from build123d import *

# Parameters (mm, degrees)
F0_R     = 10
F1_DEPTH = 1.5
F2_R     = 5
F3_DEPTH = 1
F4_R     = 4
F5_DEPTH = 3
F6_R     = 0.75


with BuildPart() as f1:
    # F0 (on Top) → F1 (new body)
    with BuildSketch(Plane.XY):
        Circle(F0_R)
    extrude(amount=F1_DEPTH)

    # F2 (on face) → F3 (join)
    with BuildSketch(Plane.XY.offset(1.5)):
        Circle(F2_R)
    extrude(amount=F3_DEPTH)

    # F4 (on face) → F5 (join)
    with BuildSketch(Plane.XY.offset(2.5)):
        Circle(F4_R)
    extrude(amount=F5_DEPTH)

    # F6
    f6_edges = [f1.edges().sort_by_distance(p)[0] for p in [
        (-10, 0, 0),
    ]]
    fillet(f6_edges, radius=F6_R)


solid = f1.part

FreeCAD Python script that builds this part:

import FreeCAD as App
import Part
import Sketcher
Q = App.Units.Quantity


def edges_at(feature, points):
    """Names of the edges that pass closest to the given points."""
    edges = feature.Shape.Edges
    near = lambda p: min(range(len(edges)), key=lambda i: edges[i].distToShape(Part.Vertex(*p))[0])
    return sorted({f"Edge{near(p) + 1}" for p in points})

doc = App.newDocument("Part")
body = doc.addObject("PartDesign::Body", "Body")

# Sketch on XY plane
sketch1 = body.newObject("Sketcher::SketchObject", "Sketch")
sketch1.AttachmentSupport = (doc.getObject("XY_Plane"), [""])
sketch1.MapMode = "FlatFace"
sketch1.addGeometry(Part.Circle(App.Vector(0, 0, 0), App.Vector(0, 0, 1), 10), False)
sketch1.addConstraint(Sketcher.Constraint("Coincident", 0, 3, -1, 1))
sketch1.addConstraint(Sketcher.Constraint("Diameter", 0, Q("20 mm")))
pad1 = body.newObject("PartDesign::Pad", "Pad")
pad1.Profile = sketch1
pad1.Length = 1.5

# Sketch on XY plane
sketch2 = body.newObject("Sketcher::SketchObject", "Sketch001")
sketch2.AttachmentSupport = (doc.getObject("XY_Plane"), [""])
sketch2.MapMode = "FlatFace"
sketch2.AttachmentOffset = App.Placement(App.Vector(0, 0, 1.5), App.Rotation())
sketch2.addGeometry(Part.Circle(App.Vector(0, 0, 0), App.Vector(0, 0, 1), 5), False)
sketch2.addConstraint(Sketcher.Constraint("Coincident", 0, 3, -1, 1))
sketch2.addConstraint(Sketcher.Constraint("Diameter", 0, Q("10 mm")))
pad2 = body.newObject("PartDesign::Pad", "Pad001")
pad2.Profile = sketch2
pad2.Length = 1

# Sketch on XY plane
sketch3 = body.newObject("Sketcher::SketchObject", "Sketch002")
sketch3.AttachmentSupport = (doc.getObject("XY_Plane"), [""])
sketch3.MapMode = "FlatFace"
sketch3.AttachmentOffset = App.Placement(App.Vector(0, 0, 2.5), App.Rotation())
sketch3.addGeometry(Part.Circle(App.Vector(0, 0, 0), App.Vector(0, 0, 1), 4), False)
sketch3.addConstraint(Sketcher.Constraint("Coincident", 0, 3, -1, 1))
sketch3.addConstraint(Sketcher.Constraint("Diameter", 0, Q("8 mm")))
pad3 = body.newObject("PartDesign::Pad", "Pad002")
pad3.Profile = sketch3
pad3.Length = 3
doc.recompute()

fillet = body.newObject("PartDesign::Fillet", "Fillet")
fillet.Base = (pad3, edges_at(pad3, [(-10, 0, 0)]))
fillet.Radius = 0.75

doc.recompute()
